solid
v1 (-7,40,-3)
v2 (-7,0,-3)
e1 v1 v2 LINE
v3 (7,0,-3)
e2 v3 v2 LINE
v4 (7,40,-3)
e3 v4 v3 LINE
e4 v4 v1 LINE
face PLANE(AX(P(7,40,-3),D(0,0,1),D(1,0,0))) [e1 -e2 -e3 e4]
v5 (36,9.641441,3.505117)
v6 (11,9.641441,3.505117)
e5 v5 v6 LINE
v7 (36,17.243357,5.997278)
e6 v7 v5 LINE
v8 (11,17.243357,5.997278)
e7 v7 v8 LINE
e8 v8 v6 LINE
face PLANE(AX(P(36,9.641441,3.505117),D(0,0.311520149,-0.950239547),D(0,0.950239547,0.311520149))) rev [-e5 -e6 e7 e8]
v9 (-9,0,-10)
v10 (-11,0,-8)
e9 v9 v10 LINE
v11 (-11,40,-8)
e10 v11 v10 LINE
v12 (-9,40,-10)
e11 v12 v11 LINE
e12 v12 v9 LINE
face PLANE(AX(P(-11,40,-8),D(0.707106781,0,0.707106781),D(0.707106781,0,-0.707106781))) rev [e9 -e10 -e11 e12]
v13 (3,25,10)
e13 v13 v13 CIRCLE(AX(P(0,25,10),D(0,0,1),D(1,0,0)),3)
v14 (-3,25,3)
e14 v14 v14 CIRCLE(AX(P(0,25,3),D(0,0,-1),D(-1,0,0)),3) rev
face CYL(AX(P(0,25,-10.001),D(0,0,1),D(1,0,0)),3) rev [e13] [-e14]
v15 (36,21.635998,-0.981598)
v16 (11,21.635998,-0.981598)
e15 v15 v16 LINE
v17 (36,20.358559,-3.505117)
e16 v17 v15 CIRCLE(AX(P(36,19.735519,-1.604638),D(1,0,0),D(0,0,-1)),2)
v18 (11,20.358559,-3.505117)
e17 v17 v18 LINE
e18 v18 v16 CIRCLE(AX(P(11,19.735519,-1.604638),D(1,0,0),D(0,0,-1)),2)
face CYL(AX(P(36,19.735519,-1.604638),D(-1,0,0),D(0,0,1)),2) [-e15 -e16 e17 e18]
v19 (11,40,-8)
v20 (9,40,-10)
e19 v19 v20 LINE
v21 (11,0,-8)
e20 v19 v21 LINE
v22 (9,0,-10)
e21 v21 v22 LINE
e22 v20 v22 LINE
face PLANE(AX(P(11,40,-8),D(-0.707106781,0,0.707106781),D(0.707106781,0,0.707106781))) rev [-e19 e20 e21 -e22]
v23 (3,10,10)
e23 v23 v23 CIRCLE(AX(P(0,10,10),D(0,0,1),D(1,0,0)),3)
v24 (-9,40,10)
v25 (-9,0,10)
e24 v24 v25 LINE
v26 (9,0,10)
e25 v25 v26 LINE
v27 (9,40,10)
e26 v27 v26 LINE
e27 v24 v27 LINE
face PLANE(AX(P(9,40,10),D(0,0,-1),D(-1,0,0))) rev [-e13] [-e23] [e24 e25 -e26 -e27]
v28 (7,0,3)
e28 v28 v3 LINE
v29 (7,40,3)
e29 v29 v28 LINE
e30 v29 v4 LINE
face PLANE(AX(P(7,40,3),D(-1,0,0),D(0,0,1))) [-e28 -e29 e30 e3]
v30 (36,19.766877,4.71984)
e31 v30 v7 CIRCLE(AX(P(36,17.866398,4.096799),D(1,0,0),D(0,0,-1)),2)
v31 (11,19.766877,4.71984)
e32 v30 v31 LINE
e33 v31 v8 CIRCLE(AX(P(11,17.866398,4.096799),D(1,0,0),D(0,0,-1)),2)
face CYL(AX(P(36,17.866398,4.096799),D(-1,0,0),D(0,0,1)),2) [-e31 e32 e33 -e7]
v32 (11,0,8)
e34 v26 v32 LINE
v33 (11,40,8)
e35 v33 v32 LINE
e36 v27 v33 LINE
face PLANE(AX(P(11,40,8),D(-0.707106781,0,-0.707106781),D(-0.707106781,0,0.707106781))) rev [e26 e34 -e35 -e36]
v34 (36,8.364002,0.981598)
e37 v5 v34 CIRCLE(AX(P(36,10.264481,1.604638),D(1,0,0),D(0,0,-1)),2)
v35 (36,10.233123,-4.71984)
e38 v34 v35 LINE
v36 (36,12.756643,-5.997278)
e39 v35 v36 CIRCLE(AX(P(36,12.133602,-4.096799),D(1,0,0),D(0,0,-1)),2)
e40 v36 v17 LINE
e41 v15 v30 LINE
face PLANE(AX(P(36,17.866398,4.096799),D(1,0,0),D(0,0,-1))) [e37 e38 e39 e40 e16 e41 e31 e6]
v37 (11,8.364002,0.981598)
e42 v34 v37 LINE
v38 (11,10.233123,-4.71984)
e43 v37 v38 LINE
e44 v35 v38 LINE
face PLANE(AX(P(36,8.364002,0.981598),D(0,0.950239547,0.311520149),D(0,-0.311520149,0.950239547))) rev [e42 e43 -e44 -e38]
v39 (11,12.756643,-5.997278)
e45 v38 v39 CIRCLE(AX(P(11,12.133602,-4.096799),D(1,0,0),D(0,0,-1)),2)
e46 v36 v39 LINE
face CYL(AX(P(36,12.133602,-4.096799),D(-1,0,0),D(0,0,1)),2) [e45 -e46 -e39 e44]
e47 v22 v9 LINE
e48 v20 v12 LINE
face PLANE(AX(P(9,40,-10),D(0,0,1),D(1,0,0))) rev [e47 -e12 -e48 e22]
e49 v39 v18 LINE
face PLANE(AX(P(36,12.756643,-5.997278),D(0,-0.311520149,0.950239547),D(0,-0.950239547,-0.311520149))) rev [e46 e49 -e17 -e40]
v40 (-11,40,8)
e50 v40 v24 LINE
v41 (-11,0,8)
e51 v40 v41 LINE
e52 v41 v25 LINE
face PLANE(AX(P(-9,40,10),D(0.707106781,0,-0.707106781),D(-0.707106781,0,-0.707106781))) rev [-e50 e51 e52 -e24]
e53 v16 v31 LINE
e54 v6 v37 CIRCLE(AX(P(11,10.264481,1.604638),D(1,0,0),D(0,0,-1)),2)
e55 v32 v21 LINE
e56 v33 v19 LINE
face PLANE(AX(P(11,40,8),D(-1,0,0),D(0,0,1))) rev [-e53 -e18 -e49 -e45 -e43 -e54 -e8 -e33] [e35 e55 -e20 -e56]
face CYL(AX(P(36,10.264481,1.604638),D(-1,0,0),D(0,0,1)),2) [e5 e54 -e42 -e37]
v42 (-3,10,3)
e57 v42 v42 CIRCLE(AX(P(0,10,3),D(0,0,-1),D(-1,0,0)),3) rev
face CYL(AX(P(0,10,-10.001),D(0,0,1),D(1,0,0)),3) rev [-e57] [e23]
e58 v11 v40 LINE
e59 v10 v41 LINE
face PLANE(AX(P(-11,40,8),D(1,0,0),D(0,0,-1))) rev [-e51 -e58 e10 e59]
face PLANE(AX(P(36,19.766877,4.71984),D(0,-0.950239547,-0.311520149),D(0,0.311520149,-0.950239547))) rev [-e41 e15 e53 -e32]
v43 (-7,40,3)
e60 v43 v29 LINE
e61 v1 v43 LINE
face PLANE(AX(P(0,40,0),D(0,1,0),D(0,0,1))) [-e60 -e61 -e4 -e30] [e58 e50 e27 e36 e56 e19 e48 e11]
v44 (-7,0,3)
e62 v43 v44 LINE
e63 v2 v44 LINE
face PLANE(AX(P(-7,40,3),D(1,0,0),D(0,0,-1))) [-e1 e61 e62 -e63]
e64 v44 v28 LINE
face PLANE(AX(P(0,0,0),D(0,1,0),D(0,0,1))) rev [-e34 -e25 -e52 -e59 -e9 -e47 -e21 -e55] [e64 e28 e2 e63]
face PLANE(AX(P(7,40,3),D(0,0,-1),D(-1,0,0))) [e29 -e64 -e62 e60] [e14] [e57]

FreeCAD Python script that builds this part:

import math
import FreeCAD as App
import Part
import Sketcher

V = App.Vector

doc = App.newDocument("Part")
body = doc.addObject("PartDesign::Body", "Body")

sketch1 = body.newObject("Sketcher::SketchObject", "Sketch")
sketch1.AttachmentSupport = (doc.getObject("XZ_Plane"), [""])
sketch1.MapMode = "FlatFace"
sketch1.addGeometry([
    Part.LineSegment(V(-9, -10, 0), V(-11, -8, 0)),
    Part.LineSegment(V(-11, -8, 0), V(-11, 8, 0)),
    Part.LineSegment(V(-11, 8, 0), V(-9, 10, 0)),
    Part.LineSegment(V(-9, 10, 0), V(9, 10, 0)),
    Part.LineSegment(V(9, 10, 0), V(11, 8, 0)),
    Part.LineSegment(V(11, 8, 0), V(11, -8, 0)),
    Part.LineSegment(V(11, -8, 0), V(9, -10, 0)),
    Part.LineSegment(V(9, -10, 0), V(-9, -10, 0)),
    Part.LineSegment(V(-7, 3, 0), V(-7, -3, 0)),
    Part.LineSegment(V(-7, -3, 0), V(7, -3, 0)),
    Part.LineSegment(V(7, -3, 0), V(7, 3, 0)),
    Part.LineSegment(V(7, 3, 0), V(-7, 3, 0)),
], False)
sketch1.addConstraint([
    Sketcher.Constraint("Coincident", 0, 2, 1, 1),
    Sketcher.Constraint("Coincident", 1, 2, 2, 1),
    Sketcher.Constraint("Coincident", 2, 2, 3, 1),
    Sketcher.Constraint("Coincident", 3, 2, 4, 1),
    Sketcher.Constraint("Coincident", 4, 2, 5, 1),
    Sketcher.Constraint("Coincident", 5, 2, 6, 1),
    Sketcher.Constraint("Coincident", 6, 2, 7, 1),
    Sketcher.Constraint("Coincident", 7, 2, 0, 1),
    Sketcher.Constraint("Coincident", 8, 2, 9, 1),
    Sketcher.Constraint("Coincident", 9, 2, 10, 1),
    Sketcher.Constraint("Coincident", 10, 2, 11, 1),
    Sketcher.Constraint("Coincident", 11, 2, 8, 1),
    Sketcher.Constraint("Vertical", 1),
    Sketcher.Constraint("Horizontal", 3),
    Sketcher.Constraint("Vertical", 5),
    Sketcher.Constraint("Horizontal", 7),
    Sketcher.Constraint("Vertical", 8),
    Sketcher.Constraint("Horizontal", 9),
    Sketcher.Constraint("Vertical", 10),
    Sketcher.Constraint("Horizontal", 11),
    Sketcher.Constraint("Symmetric", 0, 2, 4, 2, -1, 1),
    Sketcher.Constraint("Symmetric", 2, 2, 6, 2, -1, 1),
    Sketcher.Constraint("Symmetric", 8, 2, 10, 2, -1, 1),
    Sketcher.Constraint("Perpendicular", 0, 2),
    Sketcher.Constraint("Perpendicular", 2, 4),
    Sketcher.Constraint("Perpendicular", 4, 6),
    Sketcher.Constraint("Horizontal", 1, 2, 4, 2),
    Sketcher.Constraint("Vertical", 3, 2, 6, 2),
    Sketcher.Constraint("DistanceX", 3, 1, 3, 2, 18.0),
    Sketcher.Constraint("DistanceX", 9, 1, 9, 2, 14.0),
    Sketcher.Constraint("DistanceY", 1, 1, 1, 2, 16.0),
    Sketcher.Constraint("DistanceY", 8, 2, 8, 1, 6.0),
    Sketcher.Constraint("DistanceX", 0, 2, -1, 1, 11.0),
])
pad1 = body.newObject("PartDesign::Pad", "Pad")
pad1.Profile = sketch1
pad1.Length = 40
pad1.Reversed = True

sketch2 = body.newObject("Sketcher::SketchObject", "Sketch001")
sketch2.AttachmentSupport = (doc.getObject("YZ_Plane"), [""])
sketch2.MapMode = "FlatFace"
sketch2.AttachmentOffset = App.Placement(V(0, 0, 11), App.Rotation())
sketch2.addGeometry([
    Part.LineSegment(V(17.243357, 5.997278, 0), V(9.641441, 3.505117, 0)),
    Part.ArcOfCircle(Part.Circle(V(10.264481, 1.604638, 0), V(0, 0, 1), 2), math.radians(108.150866), math.radians(198.150866)),
    Part.LineSegment(V(8.364002, 0.981598, 0), V(10.233123, -4.71984, 0)),
    Part.ArcOfCircle(Part.Circle(V(12.133602, -4.096799, 0), V(0, 0, 1), 2), math.radians(-161.849134), math.radians(-71.849134)),
    Part.LineSegment(V(12.756643, -5.997278, 0), V(20.358559, -3.505117, 0)),
    Part.ArcOfCircle(Part.Circle(V(19.735519, -1.604638, 0), V(0, 0, 1), 2), math.radians(-71.849134), math.radians(18.150866)),
    Part.LineSegment(V(21.635998, -0.981598, 0), V(19.766877, 4.71984, 0)),
    Part.ArcOfCircle(Part.Circle(V(17.866398, 4.096799, 0), V(0, 0, 1), 2), math.radians(18.150866), math.radians(108.150866)),
], False)
sketch2.addConstraint([
    Sketcher.Constraint("Tangent", 0, 2, 1, 1),
    Sketcher.Constraint("Tangent", 1, 2, 2, 1),
    Sketcher.Constraint("Tangent", 2, 2, 3, 1),
    Sketcher.Constraint("Tangent", 3, 2, 4, 1),
    Sketcher.Constraint("Tangent", 4, 2, 5, 1),
    Sketcher.Constraint("Tangent", 5, 2, 6, 1),
    Sketcher.Constraint("Tangent", 6, 2, 7, 1),
    Sketcher.Constraint("Tangent", 7, 2, 0, 1),
    Sketcher.Constraint("Equal", 1, 3),
    Sketcher.Constraint("Equal", 3, 5),
    Sketcher.Constraint("Equal", 5, 7),
    Sketcher.Constraint("Perpendicular", 0, 2),
    Sketcher.Constraint("Perpendicular", 2, 4),
    Sketcher.Constraint("Perpendicular", 4, 6),
    Sketcher.Constraint("Radius", 1, 2.0),
    Sketcher.Constraint("Distance", 0, 8.0),
    Sketcher.Constraint("Distance", 2, 6.0),
    Sketcher.Constraint("DistanceY", 3, 3, -1, 1, 4.096799),
    Sketcher.Constraint("DistanceY", -1, 1, 7, 3, 4.096799),
    Sketcher.Constraint("DistanceX", -1, 1, 1, 3, 10.264481),
])
pad2 = body.newObject("PartDesign::Pad", "Pad001")
pad2.Profile = sketch2
pad2.Length = 25

sketch3 = body.newObject("Sketcher::SketchObject", "Sketch002")
sketch3.AttachmentSupport = (doc.getObject("XY_Plane"), [""])
sketch3.MapMode = "FlatFace"
sketch3.AttachmentOffset = App.Placement(V(0, 0, 10), App.Rotation())
sketch3.addGeometry(Part.Circle(V(0, 10, 0), V(0, 0, 1), 3), False)
sketch3.addConstraint([
    Sketcher.Constraint("PointOnObject", 0, 3, -2),
    Sketcher.Constraint("Diameter", 0, 6.0),
    Sketcher.Constraint("DistanceY", -1, 1, 0, 3, 10.0),
])
pocket1 = body.newObject("PartDesign::Pocket", "Pocket")
pocket1.Profile = sketch3
pocket1.Type = "UpToFirst"

sketch4 = body.newObject("Sketcher::SketchObject", "Sketch003")
sketch4.AttachmentSupport = (doc.getObject("XY_Plane"), [""])
sketch4.MapMode = "FlatFace"
sketch4.AttachmentOffset = App.Placement(V(0, 0, 10), App.Rotation())
sketch4.addGeometry(Part.Circle(V(0, 25, 0), V(0, 0, 1), 3), False)
sketch4.addConstraint([
    Sketcher.Constraint("PointOnObject", 0, 3, -2),
    Sketcher.Constraint("Diameter", 0, 6.0),
    Sketcher.Constraint("DistanceY", -1, 1, 0, 3, 25.0),
])
pocket2 = body.newObject("PartDesign::Pocket", "Pocket001")
pocket2.Profile = sketch4
pocket2.Type = "UpToFirst"

doc.recompute()
